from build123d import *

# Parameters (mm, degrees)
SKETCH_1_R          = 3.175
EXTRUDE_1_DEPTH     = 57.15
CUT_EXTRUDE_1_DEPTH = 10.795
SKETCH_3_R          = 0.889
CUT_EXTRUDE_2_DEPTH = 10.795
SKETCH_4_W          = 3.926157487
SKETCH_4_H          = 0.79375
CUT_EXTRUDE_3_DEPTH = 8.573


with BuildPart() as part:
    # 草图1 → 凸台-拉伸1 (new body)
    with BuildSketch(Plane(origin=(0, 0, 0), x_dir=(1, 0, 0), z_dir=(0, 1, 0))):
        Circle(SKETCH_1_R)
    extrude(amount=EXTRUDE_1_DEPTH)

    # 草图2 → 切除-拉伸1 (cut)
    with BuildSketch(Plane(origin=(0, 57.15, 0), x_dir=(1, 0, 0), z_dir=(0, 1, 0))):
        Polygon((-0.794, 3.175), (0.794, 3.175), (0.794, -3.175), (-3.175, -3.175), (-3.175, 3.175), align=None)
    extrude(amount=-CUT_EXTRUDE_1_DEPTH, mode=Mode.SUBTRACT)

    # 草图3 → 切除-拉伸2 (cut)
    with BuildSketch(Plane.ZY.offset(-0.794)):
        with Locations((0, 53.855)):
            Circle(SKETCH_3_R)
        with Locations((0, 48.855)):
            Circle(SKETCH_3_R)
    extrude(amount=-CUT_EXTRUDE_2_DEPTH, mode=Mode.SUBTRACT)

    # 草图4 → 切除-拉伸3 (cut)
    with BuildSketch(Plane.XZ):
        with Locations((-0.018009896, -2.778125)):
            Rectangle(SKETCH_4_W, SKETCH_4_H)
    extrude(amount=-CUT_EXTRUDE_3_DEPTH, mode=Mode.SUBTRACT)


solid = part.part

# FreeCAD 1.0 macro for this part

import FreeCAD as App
import Part
import Sketcher
Q = App.Units.Quantity


def add_polygon(sketch, points):
    """Adds a closed chain of lines whose ends are joined by coincident constraints."""
    first, n = sketch.GeometryCount, len(points)
    for a, b in zip(points, points[1:] + points[:1]):
        sketch.addGeometry(Part.LineSegment(App.Vector(*a, 0), App.Vector(*b, 0)), False)
    for i in range(n):
        sketch.addConstraint(Sketcher.Constraint("Coincident", first + i, 2, first + (i + 1) % n, 1))

doc = App.newDocument("Part")
body = doc.addObject("PartDesign::Body", "Body")

sketch1 = body.newObject("Sketcher::SketchObject", "Sketch")
sketch1.AttachmentSupport = (doc.getObject("XZ_Plane"), [""])
sketch1.MapMode = "FlatFace"
sketch1.addGeometry(Part.Circle(App.Vector(0, 0, 0), App.Vector(0, 0, 1), 3.2), False)
sketch1.addConstraint([
    Sketcher.Constraint("Coincident", 0, 3, -1, 1),
    Sketcher.Constraint("Diameter", 0, Q("0.25 in")),
])
pad1 = body.newObject("PartDesign::Pad", "Pad")
pad1.Profile = sketch1
pad1.Length = Q("2.25 in")
pad1.Reversed = True

sketch2 = body.newObject("Sketcher::SketchObject", "Sketch001")
sketch2.AttachmentSupport = (doc.getObject("XZ_Plane"), [""])
sketch2.MapMode = "FlatFace"
sketch2.AttachmentOffset = App.Placement(App.Vector(0, 0, -2.25 * 25.4), App.Rotation())
add_polygon(sketch2, [(0.8, -3.2), (-3.2, -3.2), (-3.2, 3.2), (0.8, 3.2)])
sketch2.addConstraint([
    Sketcher.Constraint("Horizontal", 0),
    Sketcher.Constraint("Vertical", 1),
    Sketcher.Constraint("Horizontal", 2),
    Sketcher.Constraint("Vertical", 3),
    Sketcher.Constraint("DistanceY", 1, 1, 1, 2, Q("0.25 in")),
    Sketcher.Constraint("DistanceX", 0, 2, -1, 1, Q("0.125 in")),
    Sketcher.Constraint("DistanceY", 0, 2, -1, 1, Q("0.125 in")),
    Sketcher.Constraint("DistanceX", 0, 2, 0, 1, Q("3.969 mm")),
])
pocket1 = body.newObject("PartDesign::Pocket", "Pocket")
pocket1.Profile = sketch2
pocket1.Length = Q("0.425 in")
pocket1.Reversed = True

sketch3 = body.newObject("Sketcher::SketchObject", "Sketch002")
sketch3.AttachmentSupport = (doc.getObject("YZ_Plane"), [""])
sketch3.MapMode = "FlatFace"
sketch3.AttachmentOffset = App.Placement(App.Vector(0, 0, 0.794), App.Rotation())
sketch3.addGeometry([
    Part.Circle(App.Vector(53.9, 0, 0), App.Vector(0, 0, 1), 0.9),
    Part.Circle(App.Vector(48.9, 0, 0), App.Vector(0, 0, 1), 0.9),
], False)
sketch3.addConstraint([
    Sketcher.Constraint("Equal", 0, 1),
    Sketcher.Constraint("PointOnObject", 0, 3, -1),
    Sketcher.Constraint("PointOnObject", 1, 3, -1),
    Sketcher.Constraint("Diameter", 0, Q("0.07 in")),
    Sketcher.Constraint("DistanceX", -1, 1, 0, 3, Q("53.855 mm")),
    Sketcher.Constraint("DistanceX", -1, 1, 1, 3, Q("48.855 mm")),
])
pocket2 = body.newObject("PartDesign::Pocket", "Pocket001")
pocket2.Profile = sketch3
pocket2.Length = Q("0.425 in")
pocket2.Reversed = True

sketch4 = body.newObject("Sketcher::SketchObject", "Sketch003")
sketch4.AttachmentSupport = (doc.getObject("XZ_Plane"), [""])
sketch4.MapMode = "FlatFace"
add_polygon(sketch4, [(-2, -2.4), (-2, -3.2), (1.9, -3.2), (1.9, -2.4)])
sketch4.addConstraint([
    Sketcher.Constraint("Vertical", 0),
    Sketcher.Constraint("Horizontal", 1),
    Sketcher.Constraint("Vertical", 2),
    Sketcher.Constraint("Horizontal", 3),
    Sketcher.Constraint("DistanceY", 0, 2, 0, 1, Q("0.03125 in")),
    Sketcher.Constraint("DistanceY", 0, 2, -1, 1, Q("0.125 in")),
    Sketcher.Constraint("DistanceX", 1, 1, 1, 2, Q("3.926157 mm")),
    Sketcher.Constraint("DistanceX", 0, 2, -1, 1, Q("1.981089 mm")),
])
pocket3 = body.newObject("PartDesign::Pocket", "Pocket002")
pocket3.Profile = sketch4
pocket3.Length = 8.573

doc.recompute()
